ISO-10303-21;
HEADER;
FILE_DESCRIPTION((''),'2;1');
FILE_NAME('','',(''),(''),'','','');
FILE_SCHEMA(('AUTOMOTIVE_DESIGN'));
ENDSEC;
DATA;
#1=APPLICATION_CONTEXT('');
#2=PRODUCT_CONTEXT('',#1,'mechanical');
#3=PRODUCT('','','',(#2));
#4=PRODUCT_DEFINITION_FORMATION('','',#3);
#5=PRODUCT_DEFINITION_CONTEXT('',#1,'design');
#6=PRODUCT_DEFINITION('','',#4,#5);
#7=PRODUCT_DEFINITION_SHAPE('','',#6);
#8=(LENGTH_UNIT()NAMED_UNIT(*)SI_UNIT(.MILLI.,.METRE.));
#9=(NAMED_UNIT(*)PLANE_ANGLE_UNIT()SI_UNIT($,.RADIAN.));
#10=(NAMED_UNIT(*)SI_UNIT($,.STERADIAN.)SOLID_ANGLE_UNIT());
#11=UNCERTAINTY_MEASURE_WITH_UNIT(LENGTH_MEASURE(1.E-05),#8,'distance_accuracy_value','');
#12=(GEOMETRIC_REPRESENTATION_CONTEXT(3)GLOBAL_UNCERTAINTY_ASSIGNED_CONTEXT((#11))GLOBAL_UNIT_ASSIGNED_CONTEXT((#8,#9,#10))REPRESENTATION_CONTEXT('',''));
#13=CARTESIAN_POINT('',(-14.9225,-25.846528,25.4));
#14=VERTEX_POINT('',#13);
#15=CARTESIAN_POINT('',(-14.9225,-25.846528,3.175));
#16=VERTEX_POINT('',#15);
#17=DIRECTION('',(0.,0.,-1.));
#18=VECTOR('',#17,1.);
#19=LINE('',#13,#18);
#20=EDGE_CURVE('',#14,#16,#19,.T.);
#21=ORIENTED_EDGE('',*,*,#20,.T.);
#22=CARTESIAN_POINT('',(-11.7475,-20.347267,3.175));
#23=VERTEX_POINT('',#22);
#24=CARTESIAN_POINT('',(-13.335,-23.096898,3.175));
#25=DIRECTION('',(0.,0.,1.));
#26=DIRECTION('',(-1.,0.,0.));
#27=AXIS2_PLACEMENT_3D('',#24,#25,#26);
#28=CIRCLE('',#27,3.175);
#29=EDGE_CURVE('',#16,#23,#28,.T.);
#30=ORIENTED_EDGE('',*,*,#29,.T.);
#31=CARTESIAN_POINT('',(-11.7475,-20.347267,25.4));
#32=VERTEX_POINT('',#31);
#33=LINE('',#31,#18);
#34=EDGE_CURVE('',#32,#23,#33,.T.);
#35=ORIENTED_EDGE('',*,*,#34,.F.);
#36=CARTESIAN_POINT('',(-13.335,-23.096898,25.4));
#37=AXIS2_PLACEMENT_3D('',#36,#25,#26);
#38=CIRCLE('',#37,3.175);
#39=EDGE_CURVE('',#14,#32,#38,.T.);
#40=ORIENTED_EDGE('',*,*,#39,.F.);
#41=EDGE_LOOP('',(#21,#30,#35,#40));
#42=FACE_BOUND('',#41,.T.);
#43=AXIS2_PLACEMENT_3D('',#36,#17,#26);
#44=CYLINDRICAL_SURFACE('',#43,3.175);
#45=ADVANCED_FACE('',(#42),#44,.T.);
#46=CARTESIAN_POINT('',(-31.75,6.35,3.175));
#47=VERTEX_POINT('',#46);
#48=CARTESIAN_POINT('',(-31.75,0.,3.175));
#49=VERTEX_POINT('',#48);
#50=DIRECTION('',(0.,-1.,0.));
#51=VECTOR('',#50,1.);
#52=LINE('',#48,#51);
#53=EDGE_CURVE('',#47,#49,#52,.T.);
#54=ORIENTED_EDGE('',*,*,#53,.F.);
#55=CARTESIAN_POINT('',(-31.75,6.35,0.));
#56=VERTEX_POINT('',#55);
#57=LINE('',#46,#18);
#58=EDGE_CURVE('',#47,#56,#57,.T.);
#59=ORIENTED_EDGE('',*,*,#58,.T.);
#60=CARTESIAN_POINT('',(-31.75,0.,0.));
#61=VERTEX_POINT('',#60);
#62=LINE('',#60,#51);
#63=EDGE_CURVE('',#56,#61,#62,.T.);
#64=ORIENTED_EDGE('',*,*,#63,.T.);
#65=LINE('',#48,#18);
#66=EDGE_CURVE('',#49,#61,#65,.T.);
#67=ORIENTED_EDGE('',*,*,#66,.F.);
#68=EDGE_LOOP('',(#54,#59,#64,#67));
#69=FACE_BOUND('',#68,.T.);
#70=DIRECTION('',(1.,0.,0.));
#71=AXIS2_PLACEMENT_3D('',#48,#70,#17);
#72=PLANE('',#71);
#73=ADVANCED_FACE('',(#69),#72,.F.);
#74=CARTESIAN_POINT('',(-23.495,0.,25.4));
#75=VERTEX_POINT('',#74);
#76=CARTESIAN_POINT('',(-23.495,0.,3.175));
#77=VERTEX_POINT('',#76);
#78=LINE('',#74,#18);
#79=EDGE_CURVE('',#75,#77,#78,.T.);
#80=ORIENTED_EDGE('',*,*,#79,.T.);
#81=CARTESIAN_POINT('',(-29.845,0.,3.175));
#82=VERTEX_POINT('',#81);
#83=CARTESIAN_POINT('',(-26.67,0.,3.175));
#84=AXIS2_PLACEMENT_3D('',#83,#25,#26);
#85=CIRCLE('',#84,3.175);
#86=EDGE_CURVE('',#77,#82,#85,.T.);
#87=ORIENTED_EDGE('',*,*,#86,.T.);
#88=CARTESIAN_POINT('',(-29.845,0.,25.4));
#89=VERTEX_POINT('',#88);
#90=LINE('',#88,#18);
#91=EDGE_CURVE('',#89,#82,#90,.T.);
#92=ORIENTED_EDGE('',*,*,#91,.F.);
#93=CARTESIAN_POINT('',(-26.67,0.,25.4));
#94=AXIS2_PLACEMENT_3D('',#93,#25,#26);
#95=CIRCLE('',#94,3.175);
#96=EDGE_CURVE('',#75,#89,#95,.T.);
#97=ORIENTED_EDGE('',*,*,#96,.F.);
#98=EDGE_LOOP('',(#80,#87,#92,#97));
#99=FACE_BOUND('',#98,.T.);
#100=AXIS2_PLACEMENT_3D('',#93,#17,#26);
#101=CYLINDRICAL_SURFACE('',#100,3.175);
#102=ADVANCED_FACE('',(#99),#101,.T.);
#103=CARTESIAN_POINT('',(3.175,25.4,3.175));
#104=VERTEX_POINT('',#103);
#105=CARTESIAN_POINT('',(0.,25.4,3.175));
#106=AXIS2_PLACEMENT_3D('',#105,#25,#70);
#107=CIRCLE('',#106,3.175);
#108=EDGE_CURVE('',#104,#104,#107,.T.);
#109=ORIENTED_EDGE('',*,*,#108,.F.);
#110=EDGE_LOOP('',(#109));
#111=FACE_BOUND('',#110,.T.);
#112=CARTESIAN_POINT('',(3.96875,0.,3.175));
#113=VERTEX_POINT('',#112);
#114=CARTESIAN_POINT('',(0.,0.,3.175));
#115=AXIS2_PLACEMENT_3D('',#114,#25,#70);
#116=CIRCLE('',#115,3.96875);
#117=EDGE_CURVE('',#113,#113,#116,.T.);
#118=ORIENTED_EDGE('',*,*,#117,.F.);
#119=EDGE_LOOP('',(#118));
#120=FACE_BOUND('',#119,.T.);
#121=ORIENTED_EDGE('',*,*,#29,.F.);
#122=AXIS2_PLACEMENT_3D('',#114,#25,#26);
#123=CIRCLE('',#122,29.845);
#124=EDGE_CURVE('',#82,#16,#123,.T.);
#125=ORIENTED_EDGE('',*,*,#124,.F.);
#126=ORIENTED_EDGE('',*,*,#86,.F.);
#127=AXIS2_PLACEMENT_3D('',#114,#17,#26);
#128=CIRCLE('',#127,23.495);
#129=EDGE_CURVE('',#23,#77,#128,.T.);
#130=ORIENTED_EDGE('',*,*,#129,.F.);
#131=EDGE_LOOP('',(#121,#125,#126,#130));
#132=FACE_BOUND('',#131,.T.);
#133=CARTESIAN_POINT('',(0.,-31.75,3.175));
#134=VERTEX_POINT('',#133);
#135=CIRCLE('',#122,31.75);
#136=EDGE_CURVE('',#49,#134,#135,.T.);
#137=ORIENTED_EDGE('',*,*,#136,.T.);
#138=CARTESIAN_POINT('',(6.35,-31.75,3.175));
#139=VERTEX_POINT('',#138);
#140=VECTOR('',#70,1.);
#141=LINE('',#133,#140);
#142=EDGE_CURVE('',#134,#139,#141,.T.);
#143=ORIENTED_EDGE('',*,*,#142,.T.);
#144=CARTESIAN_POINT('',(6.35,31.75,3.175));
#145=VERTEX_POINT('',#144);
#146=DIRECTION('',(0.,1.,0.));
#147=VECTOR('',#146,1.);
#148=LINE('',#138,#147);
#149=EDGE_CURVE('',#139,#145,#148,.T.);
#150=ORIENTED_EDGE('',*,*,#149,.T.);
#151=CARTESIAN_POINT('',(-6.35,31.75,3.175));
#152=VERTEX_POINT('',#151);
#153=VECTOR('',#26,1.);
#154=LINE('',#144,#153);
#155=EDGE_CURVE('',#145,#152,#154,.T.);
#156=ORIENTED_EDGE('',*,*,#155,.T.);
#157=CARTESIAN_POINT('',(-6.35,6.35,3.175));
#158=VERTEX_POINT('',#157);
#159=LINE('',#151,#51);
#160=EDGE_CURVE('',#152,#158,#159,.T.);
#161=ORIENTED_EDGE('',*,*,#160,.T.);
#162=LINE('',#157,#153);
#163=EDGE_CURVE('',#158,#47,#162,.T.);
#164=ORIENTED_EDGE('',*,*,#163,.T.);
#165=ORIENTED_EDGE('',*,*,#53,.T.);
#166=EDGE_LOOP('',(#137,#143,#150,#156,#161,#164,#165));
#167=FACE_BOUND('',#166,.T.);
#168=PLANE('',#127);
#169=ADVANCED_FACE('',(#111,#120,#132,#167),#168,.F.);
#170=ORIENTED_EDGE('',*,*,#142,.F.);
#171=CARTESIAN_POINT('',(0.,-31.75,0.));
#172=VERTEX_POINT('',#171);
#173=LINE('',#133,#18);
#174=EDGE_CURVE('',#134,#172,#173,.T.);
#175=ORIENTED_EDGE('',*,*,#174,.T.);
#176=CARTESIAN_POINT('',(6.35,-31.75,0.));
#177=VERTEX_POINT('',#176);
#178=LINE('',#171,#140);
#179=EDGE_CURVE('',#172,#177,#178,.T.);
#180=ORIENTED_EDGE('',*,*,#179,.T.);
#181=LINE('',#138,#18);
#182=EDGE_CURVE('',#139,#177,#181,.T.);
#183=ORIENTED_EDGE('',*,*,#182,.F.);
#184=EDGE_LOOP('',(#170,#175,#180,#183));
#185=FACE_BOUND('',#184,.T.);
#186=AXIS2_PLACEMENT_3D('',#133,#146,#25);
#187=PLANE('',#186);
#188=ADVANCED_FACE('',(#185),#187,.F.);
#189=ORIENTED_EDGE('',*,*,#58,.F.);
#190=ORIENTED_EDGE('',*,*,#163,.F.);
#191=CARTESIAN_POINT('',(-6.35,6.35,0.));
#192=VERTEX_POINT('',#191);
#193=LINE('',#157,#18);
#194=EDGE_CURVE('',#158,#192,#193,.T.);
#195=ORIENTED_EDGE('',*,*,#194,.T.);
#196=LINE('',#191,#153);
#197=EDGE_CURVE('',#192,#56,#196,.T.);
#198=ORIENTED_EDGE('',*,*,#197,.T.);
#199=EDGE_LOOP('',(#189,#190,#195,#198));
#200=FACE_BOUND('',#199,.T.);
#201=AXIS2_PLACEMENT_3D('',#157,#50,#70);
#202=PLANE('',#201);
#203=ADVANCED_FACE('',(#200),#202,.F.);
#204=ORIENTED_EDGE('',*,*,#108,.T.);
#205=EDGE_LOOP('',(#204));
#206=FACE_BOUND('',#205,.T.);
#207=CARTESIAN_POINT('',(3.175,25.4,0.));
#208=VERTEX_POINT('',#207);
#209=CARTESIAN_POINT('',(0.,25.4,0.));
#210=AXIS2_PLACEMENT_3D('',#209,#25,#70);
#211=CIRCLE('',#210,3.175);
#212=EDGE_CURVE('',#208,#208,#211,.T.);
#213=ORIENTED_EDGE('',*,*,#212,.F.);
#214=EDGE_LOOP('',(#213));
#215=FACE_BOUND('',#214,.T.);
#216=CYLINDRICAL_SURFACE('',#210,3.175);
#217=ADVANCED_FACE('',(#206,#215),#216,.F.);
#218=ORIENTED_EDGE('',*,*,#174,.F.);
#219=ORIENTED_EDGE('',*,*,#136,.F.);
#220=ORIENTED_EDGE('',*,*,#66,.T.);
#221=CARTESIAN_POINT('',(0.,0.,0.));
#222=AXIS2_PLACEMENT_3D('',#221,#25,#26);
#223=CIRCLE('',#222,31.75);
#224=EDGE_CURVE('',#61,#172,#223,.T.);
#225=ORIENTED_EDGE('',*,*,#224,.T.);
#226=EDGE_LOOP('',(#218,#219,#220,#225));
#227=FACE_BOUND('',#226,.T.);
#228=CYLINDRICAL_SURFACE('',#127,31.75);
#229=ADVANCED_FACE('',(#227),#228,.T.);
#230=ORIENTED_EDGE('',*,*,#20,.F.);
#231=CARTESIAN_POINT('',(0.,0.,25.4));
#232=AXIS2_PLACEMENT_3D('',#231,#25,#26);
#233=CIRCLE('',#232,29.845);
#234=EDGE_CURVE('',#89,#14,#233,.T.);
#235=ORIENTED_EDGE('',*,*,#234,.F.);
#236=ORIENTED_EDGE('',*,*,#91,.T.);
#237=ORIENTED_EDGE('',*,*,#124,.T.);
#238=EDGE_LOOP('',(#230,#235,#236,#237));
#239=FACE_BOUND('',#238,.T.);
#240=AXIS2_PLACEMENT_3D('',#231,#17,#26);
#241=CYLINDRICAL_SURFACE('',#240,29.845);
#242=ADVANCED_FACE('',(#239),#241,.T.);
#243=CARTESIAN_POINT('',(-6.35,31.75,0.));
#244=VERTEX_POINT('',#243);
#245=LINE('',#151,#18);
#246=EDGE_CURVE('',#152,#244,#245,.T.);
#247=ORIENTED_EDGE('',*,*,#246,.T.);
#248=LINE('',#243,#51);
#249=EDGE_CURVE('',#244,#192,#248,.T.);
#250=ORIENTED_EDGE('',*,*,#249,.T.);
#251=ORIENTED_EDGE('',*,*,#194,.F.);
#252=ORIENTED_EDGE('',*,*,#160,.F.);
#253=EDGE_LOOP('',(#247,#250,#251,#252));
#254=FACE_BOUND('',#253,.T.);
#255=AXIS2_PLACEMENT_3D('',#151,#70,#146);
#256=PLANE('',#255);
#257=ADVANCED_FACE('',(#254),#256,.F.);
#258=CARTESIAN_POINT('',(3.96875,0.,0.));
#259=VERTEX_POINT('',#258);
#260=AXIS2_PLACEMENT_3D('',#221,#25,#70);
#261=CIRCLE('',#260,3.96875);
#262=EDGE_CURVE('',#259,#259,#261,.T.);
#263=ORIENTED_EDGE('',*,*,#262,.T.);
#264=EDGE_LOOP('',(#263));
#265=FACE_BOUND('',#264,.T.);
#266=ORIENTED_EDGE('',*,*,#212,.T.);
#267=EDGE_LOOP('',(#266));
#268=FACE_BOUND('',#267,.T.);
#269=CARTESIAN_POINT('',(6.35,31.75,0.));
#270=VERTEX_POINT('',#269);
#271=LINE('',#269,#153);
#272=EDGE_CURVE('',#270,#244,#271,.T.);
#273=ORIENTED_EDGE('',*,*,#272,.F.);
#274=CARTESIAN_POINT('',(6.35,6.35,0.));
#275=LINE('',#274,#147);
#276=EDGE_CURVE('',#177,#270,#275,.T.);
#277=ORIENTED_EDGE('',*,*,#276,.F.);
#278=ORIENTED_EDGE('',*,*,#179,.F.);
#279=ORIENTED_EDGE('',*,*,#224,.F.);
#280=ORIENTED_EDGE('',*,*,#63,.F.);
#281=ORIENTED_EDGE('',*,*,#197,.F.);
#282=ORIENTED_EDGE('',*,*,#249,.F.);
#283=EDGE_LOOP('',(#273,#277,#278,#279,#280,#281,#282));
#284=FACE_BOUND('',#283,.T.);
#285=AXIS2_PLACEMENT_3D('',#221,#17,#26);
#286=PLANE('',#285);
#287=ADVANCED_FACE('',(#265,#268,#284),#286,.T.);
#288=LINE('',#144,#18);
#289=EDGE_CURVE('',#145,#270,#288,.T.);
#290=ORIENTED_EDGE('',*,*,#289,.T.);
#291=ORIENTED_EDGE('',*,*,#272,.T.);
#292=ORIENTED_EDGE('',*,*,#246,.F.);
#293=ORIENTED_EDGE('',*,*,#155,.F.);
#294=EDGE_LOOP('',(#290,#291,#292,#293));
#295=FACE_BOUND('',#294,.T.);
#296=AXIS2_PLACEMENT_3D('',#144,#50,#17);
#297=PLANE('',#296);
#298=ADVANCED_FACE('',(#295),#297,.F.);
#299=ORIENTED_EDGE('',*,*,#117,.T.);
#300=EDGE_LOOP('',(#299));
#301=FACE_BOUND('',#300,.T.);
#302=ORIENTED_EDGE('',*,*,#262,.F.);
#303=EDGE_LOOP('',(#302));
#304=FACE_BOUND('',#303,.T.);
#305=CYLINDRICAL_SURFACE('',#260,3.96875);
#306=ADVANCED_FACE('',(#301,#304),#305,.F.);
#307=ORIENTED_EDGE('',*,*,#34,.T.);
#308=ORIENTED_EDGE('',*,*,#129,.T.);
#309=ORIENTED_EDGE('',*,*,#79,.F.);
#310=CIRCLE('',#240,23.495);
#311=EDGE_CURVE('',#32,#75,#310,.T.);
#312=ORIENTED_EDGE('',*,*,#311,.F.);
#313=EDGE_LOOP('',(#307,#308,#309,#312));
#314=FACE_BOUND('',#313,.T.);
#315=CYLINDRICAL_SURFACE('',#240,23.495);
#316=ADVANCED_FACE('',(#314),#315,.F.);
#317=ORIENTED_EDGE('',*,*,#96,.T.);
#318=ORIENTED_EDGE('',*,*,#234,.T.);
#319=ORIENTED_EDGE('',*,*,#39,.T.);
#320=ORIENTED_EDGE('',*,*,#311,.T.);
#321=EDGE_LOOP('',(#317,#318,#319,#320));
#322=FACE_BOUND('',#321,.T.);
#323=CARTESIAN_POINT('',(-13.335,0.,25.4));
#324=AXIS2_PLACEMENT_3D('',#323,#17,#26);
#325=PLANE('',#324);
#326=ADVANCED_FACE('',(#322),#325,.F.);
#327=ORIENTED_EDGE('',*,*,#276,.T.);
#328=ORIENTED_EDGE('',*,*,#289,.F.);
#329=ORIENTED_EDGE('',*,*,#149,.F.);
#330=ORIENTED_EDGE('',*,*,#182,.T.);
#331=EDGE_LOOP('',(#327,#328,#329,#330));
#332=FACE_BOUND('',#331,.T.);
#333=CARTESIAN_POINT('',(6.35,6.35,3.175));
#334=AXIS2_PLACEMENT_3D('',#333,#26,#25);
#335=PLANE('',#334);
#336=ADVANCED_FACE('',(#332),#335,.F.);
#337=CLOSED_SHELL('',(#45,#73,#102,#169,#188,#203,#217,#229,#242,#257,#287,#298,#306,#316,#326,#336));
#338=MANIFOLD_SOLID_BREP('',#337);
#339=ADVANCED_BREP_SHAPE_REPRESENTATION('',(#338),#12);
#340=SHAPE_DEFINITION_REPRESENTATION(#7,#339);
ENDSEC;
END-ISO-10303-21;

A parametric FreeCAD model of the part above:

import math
import FreeCAD as App
import Part
import Sketcher
from FreeCAD import Vector
Q = App.Units.Quantity

doc = App.newDocument("Part")
body = doc.addObject("PartDesign::Body", "Body")

# Sketch on XY plane
sketch1 = body.newObject("Sketcher::SketchObject", "Sketch")
sketch1.AttachmentSupport = (doc.getObject("XY_Plane"), [""])
sketch1.MapMode = "FlatFace"
sketch1.addGeometry([
    Part.LineSegment(Vector(-31.75, 6.35, 0), Vector(-31.75, 0, 0)),  # 0
    Part.ArcOfCircle(Part.Circle(Vector(0, 0, 0), Vector(0, 0, 1), 31.75), math.radians(180), math.radians(270)),  # 1
    Part.LineSegment(Vector(0, -31.75, 0), Vector(6.35, -31.75, 0)),  # 2
    Part.LineSegment(Vector(6.35, -31.75, 0), Vector(6.35, 31.75, 0)),  # 3
    Part.LineSegment(Vector(6.35, 31.75, 0), Vector(-6.35, 31.75, 0)),  # 4
    Part.LineSegment(Vector(-6.35, 31.75, 0), Vector(-6.35, 6.35, 0)),  # 5
    Part.LineSegment(Vector(-6.35, 6.35, 0), Vector(-31.75, 6.35, 0)),  # 6
], False)
sketch1.addConstraint([
    Sketcher.Constraint("Tangent", 0, 2, 1, 1),
    Sketcher.Constraint("Tangent", 1, 2, 2, 1),
    Sketcher.Constraint("Coincident", 2, 2, 3, 1),
    Sketcher.Constraint("Coincident", 3, 2, 4, 1),
    Sketcher.Constraint("Coincident", 4, 2, 5, 1),
    Sketcher.Constraint("Coincident", 5, 2, 6, 1),
    Sketcher.Constraint("Coincident", 6, 2, 0, 1),
    Sketcher.Constraint("Vertical", 0),
    Sketcher.Constraint("Horizontal", 2),
    Sketcher.Constraint("Vertical", 3),
    Sketcher.Constraint("Horizontal", 4),
    Sketcher.Constraint("Vertical", 5),
    Sketcher.Constraint("Horizontal", 6),
    Sketcher.Constraint("Coincident", 1, 3, -1, 1),
    Sketcher.Constraint("Symmetric", 2, 2, 4, 2, -1, 1),
    Sketcher.Constraint("Equal", 2, 0),
    Sketcher.Constraint("DistanceX", 6, 2, 6, 1, Q("1 in")),
    Sketcher.Constraint("Radius", 1, Q("1.25 in")),
])
pad1 = body.newObject("PartDesign::Pad", "Pad")
pad1.Profile = sketch1
pad1.Length = Q("0.125 in")

# Sketch on XY plane
sketch2 = body.newObject("Sketcher::SketchObject", "Sketch001")
sketch2.AttachmentSupport = (doc.getObject("XY_Plane"), [""])
sketch2.MapMode = "FlatFace"
sketch2.AttachmentOffset = App.Placement(Vector(0, 0, 0.125 * 25.4), App.Rotation())
sketch2.addGeometry([
    Part.Circle(Vector(0, 0, 0), Vector(0, 0, 1), 3.96875),
    Part.Circle(Vector(0, 25.4, 0), Vector(0, 0, 1), 3.175),
], False)
sketch2.addConstraint([
    Sketcher.Constraint("Coincident", 0, 3, -1, 1),
    Sketcher.Constraint("PointOnObject", 1, 3, -2),
    Sketcher.Constraint("Diameter", 1, Q("0.25 in")),
    Sketcher.Constraint("Diameter", 0, Q("0.3125 in")),
    Sketcher.Constraint("DistanceY", -1, 1, 1, 3, Q("1 in")),
])
pocket1 = body.newObject("PartDesign::Pocket", "Pocket")
pocket1.Profile = sketch2
pocket1.Type = "ThroughAll"

# Sketch on XY plane
sketch3 = body.newObject("Sketcher::SketchObject", "Sketch002")
sketch3.AttachmentSupport = (doc.getObject("XY_Plane"), [""])
sketch3.MapMode = "FlatFace"
sketch3.AttachmentOffset = App.Placement(Vector(0, 0, 0.125 * 25.4), App.Rotation())
sketch3.addGeometry([
    Part.ArcOfCircle(Part.Circle(Vector(-26.67, 0, 0), Vector(0, 0, 1), 3.175), math.radians(0), math.radians(180)),
    Part.ArcOfCircle(Part.Circle(Vector(0, 0, 0), Vector(0, 0, 1), 29.845), math.radians(180), math.radians(240)),
    Part.ArcOfCircle(Part.Circle(Vector(-13.335, -23.096898, 0), Vector(0, 0, 1), 3.175), math.radians(-120), math.radians(60)),
    Part.ArcOfCircle(Part.Circle(Vector(0, 0, 0), Vector(0, 0, 1), 23.495), math.radians(180), math.radians(240)),
], False)
sketch3.addConstraint([
    Sketcher.Constraint("Tangent", 0, 2, 1, 1),
    Sketcher.Constraint("Tangent", 1, 2, 2, 1),
    Sketcher.Constraint("Tangent", 2, 2, 3, 2),
    Sketcher.Constraint("Tangent", 3, 1, 0, 1),
    Sketcher.Constraint("Coincident", 1, 3, -1, 1),
    Sketcher.Constraint("Coincident", 3, 3, -1, 1),
    Sketcher.Constraint("PointOnObject", 0, 3, -1),
    Sketcher.Constraint("Radius", 0, Q("0.125 in")),
    Sketcher.Constraint("Radius", 1, Q("1.175 in")),
    Sketcher.Constraint("DistanceX", 0, 2, 2, 3, Q("0.65 in")),
])
pad2 = body.newObject("PartDesign::Pad", "Pad001")
pad2.Profile = sketch3
pad2.Length = Q("0.875 in")

doc.recompute()
